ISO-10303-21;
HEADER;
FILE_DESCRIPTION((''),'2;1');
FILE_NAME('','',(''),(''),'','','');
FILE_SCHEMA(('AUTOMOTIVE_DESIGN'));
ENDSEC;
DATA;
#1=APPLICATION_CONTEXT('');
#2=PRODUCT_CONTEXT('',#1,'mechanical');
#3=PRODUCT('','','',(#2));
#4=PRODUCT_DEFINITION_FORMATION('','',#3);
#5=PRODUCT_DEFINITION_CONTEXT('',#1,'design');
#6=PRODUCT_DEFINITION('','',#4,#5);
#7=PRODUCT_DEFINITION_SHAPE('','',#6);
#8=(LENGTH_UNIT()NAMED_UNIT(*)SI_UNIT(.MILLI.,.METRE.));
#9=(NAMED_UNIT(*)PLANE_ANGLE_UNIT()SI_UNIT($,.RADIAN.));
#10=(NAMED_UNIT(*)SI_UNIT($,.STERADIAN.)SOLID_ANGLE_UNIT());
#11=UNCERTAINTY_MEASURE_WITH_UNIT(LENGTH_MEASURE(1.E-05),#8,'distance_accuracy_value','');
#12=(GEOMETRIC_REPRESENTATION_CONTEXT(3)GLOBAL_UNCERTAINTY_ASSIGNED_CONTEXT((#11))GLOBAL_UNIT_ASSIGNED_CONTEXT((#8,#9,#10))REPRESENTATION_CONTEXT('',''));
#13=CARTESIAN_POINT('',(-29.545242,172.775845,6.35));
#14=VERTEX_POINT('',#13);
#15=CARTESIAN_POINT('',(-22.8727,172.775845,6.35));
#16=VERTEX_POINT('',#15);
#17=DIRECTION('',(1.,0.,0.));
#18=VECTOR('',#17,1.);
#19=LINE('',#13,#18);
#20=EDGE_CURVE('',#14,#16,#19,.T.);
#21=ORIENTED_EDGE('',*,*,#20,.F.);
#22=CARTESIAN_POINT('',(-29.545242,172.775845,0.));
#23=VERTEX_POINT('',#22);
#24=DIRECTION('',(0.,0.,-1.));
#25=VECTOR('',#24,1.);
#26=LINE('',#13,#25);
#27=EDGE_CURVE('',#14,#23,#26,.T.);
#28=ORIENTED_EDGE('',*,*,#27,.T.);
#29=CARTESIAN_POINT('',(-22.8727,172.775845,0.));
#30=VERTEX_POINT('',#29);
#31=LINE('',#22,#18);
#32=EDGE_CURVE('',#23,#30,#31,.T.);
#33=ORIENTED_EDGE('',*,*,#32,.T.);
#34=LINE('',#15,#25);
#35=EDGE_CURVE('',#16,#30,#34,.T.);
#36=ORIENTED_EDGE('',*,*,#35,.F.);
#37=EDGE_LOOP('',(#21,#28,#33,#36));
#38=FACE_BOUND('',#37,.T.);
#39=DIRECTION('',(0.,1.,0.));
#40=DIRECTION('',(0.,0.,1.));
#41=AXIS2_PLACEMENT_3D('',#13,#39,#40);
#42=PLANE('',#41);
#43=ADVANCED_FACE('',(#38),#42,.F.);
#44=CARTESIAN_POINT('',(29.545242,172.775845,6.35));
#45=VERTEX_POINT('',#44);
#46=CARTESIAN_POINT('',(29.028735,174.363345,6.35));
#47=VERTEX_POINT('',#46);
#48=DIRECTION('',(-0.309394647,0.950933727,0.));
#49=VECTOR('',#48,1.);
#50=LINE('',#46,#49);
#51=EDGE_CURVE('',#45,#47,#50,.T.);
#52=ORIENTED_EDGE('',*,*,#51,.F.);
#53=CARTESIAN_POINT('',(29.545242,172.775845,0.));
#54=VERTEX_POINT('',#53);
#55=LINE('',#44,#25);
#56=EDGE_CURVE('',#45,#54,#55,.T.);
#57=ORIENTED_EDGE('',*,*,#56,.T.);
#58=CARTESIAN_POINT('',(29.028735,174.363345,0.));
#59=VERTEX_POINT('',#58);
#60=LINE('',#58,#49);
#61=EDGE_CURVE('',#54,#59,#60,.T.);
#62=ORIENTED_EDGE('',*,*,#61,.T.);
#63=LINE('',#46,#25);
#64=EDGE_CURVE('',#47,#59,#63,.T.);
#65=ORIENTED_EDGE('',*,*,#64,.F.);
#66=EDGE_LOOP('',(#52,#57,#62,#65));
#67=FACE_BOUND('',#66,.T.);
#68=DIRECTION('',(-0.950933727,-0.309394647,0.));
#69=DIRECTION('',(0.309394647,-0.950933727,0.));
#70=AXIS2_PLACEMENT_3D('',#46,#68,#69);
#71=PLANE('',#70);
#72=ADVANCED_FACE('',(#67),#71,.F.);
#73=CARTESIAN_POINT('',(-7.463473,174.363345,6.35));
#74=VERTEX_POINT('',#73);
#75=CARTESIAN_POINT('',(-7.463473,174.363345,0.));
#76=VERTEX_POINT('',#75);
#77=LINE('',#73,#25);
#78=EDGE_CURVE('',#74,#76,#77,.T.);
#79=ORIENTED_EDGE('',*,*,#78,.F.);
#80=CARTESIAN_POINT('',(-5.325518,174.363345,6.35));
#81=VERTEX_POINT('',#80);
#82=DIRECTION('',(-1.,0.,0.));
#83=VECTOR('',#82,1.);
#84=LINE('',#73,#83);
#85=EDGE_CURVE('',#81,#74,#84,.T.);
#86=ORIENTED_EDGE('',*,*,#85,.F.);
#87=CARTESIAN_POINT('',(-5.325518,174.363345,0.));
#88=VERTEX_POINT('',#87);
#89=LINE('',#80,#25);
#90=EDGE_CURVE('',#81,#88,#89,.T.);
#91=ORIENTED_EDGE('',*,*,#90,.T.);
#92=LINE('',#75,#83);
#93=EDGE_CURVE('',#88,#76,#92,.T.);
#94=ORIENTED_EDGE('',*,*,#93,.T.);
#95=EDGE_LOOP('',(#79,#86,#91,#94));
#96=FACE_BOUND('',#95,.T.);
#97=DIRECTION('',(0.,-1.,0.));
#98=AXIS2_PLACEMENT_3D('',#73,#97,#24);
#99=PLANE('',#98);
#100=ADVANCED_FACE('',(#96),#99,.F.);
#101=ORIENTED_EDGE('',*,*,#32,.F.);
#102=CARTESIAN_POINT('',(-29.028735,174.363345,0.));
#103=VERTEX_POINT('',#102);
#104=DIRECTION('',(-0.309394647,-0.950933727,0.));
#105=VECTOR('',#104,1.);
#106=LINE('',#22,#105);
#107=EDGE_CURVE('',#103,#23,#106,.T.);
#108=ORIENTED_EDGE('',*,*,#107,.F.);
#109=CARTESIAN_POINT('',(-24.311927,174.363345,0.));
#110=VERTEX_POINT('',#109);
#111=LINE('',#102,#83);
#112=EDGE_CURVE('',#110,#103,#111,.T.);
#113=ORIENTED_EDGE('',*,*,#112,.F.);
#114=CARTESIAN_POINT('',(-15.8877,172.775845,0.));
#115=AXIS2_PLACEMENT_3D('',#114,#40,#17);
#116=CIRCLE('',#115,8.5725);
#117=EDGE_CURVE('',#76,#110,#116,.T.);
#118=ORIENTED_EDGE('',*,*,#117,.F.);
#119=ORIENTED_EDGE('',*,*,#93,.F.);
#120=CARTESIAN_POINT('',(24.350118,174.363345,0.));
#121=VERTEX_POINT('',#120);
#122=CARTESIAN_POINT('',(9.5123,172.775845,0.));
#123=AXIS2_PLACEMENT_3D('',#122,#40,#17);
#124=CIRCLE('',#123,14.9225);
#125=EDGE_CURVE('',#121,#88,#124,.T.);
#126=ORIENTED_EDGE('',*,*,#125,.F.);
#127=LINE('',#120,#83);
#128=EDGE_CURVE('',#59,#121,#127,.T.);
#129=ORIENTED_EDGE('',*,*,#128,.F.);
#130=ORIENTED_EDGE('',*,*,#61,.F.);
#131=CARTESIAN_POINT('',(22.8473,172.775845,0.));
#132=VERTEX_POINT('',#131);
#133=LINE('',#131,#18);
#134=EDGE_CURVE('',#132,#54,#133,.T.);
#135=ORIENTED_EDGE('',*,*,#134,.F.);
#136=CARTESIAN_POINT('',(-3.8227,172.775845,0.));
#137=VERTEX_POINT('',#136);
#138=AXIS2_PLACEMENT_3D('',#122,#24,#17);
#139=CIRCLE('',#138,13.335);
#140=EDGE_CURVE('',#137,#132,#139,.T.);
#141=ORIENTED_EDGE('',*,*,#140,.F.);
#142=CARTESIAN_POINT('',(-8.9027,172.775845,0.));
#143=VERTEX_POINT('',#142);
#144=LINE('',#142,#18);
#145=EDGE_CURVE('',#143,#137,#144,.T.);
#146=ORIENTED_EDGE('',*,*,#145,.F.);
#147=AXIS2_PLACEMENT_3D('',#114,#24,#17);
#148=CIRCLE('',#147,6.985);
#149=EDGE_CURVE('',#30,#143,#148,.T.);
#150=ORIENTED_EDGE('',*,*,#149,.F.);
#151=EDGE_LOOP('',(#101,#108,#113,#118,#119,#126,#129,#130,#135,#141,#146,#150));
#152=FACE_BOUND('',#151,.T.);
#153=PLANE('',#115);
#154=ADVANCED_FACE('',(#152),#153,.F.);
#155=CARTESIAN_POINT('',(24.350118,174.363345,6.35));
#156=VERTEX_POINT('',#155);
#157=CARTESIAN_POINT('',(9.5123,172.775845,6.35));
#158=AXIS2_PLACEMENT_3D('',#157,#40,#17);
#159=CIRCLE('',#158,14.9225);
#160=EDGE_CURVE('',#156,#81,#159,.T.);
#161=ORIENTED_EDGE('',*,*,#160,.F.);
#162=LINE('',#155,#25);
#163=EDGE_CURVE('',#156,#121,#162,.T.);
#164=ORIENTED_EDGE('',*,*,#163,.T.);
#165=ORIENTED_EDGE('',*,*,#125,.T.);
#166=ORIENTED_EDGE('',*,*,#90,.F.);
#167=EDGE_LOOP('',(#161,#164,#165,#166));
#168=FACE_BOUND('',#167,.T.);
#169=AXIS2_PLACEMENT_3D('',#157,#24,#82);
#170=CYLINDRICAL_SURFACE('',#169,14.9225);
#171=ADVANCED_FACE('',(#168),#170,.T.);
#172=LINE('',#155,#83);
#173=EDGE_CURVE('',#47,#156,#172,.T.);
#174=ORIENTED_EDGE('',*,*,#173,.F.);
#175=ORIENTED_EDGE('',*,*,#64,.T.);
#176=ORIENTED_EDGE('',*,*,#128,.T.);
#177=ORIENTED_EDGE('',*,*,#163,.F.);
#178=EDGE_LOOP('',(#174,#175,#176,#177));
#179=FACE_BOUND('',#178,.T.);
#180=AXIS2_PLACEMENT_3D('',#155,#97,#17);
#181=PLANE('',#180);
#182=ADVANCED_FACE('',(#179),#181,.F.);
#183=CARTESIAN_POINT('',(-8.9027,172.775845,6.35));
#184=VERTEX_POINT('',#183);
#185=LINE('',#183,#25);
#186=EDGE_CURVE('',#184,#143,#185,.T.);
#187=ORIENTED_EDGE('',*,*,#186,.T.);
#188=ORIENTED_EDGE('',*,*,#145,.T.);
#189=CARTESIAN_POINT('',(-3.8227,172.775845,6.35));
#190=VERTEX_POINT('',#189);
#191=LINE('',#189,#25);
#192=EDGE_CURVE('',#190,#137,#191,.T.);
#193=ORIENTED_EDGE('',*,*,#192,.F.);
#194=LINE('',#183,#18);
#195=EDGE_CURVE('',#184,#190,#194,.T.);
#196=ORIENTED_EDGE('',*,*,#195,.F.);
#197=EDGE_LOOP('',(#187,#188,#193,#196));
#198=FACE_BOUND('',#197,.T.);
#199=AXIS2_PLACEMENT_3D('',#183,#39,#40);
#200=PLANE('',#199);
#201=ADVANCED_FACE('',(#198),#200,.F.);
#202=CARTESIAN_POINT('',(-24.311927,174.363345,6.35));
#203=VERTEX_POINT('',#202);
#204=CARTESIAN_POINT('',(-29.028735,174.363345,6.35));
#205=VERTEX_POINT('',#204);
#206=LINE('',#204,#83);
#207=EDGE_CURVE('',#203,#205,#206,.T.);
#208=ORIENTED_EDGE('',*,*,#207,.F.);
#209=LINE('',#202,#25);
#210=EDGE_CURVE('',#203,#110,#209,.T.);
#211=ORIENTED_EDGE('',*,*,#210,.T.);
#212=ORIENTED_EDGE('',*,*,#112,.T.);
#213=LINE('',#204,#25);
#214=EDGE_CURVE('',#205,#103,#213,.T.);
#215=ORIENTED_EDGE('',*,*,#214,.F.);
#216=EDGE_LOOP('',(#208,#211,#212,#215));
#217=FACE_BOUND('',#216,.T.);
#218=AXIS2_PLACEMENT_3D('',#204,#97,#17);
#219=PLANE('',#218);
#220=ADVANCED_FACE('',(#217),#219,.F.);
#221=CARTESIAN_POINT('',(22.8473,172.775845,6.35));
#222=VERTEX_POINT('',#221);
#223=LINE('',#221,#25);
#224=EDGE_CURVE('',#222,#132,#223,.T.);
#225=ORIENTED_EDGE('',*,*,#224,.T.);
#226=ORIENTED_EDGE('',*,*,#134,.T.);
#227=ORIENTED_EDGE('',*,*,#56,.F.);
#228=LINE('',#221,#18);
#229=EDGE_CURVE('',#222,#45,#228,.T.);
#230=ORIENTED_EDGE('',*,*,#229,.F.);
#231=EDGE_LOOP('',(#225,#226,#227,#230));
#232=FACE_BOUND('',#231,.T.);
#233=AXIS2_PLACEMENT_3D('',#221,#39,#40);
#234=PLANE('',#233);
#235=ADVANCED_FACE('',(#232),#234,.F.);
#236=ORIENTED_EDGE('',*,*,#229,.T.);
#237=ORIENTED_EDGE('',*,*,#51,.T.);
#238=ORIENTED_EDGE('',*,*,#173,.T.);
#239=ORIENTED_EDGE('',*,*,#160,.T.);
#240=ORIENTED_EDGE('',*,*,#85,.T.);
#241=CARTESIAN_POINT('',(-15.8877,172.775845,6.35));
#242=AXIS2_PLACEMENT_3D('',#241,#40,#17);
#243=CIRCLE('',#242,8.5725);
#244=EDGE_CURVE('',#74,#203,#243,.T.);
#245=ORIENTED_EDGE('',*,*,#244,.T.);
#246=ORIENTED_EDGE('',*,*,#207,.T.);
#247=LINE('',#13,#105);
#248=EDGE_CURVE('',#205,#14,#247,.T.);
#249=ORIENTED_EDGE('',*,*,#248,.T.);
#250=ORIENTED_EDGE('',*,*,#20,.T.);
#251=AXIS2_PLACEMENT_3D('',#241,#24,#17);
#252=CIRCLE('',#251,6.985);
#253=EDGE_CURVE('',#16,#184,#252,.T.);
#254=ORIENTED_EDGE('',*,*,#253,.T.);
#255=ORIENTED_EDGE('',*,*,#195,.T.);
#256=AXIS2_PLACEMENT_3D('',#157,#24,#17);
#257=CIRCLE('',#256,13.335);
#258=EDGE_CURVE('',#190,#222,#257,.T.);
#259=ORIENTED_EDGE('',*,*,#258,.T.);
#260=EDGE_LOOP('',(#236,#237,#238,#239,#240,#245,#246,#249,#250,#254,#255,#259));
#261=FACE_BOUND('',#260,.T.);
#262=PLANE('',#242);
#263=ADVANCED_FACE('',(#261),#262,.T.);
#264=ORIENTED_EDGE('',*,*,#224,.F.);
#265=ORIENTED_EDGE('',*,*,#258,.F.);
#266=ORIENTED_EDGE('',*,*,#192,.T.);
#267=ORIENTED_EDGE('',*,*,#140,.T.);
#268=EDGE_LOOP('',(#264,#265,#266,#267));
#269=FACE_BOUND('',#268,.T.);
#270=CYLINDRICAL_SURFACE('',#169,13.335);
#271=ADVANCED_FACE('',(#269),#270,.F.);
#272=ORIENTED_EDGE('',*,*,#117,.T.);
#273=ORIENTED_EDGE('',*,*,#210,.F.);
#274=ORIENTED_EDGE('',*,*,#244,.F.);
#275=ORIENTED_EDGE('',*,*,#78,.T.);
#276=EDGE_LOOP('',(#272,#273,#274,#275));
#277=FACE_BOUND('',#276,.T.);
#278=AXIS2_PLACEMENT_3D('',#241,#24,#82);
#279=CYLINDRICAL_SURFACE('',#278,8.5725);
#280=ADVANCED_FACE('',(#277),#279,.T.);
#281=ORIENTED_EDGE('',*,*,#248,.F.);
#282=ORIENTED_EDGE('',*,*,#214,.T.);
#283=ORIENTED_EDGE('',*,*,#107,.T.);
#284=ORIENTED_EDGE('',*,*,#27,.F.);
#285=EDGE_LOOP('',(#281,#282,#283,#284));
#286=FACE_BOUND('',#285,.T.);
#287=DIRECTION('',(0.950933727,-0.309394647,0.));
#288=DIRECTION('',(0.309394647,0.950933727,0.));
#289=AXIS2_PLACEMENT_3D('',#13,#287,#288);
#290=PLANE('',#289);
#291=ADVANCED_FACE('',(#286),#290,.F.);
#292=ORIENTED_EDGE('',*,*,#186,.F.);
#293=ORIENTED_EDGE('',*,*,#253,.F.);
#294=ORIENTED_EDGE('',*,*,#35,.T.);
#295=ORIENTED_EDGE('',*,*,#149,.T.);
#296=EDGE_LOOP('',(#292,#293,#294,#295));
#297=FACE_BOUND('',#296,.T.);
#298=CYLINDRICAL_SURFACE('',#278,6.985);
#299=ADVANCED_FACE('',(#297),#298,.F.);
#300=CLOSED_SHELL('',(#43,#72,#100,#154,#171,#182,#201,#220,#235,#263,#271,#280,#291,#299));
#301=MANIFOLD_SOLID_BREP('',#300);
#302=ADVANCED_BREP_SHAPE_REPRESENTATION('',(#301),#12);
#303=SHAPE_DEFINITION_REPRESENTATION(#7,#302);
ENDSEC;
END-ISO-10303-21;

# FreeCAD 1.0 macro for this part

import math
import FreeCAD as App
import Part
import Sketcher

V = App.Vector
Q = App.Units.Quantity

doc = App.newDocument("Part")
body = doc.addObject("PartDesign::Body", "Body")

# Sketch on XY plane
sketch1 = body.newObject("Sketcher::SketchObject", "Sketch")
sketch1.AttachmentSupport = (doc.getObject("XY_Plane"), [""])
sketch1.MapMode = "FlatFace"
sketch1.addGeometry([
    Part.LineSegment(V(-29.5, 172.8, 0), V(-22.9, 172.8, 0)),  # 0
    Part.ArcOfCircle(Part.Circle(V(-15.9, 172.8, 0), V(0, 0, 1), 7), math.radians(0), math.radians(180)),  # 1
    Part.LineSegment(V(-8.9, 172.8, 0), V(-3.8, 172.8, 0)),  # 2
    Part.ArcOfCircle(Part.Circle(V(9.5, 172.8, 0), V(0, 0, 1), 13.3), math.radians(0), math.radians(180)),  # 3
    Part.LineSegment(V(22.8, 172.8, 0), V(29.5, 172.8, 0)),  # 4
    Part.LineSegment(V(29.5, 172.8, 0), V(29, 174.4, 0)),  # 5
    Part.LineSegment(V(29, 174.4, 0), V(24.4, 174.4, 0)),  # 6
    Part.ArcOfCircle(Part.Circle(V(9.5, 172.8, 0), V(0, 0, 1), 14.9), math.radians(6), math.radians(174)),  # 7
    Part.LineSegment(V(-5.3, 174.4, 0), V(-7.5, 174.4, 0)),  # 8
    Part.ArcOfCircle(Part.Circle(V(-15.9, 172.8, 0), V(0, 0, 1), 8.6), math.radians(11), math.radians(169)),  # 9
    Part.LineSegment(V(-24.3, 174.4, 0), V(-29, 174.4, 0)),  # 10
    Part.LineSegment(V(-29, 174.4, 0), V(-29.5, 172.8, 0)),  # 11
], False)
sketch1.addConstraint([
    Sketcher.Constraint("Coincident", 0, 2, 1, 2),
    Sketcher.Constraint("Coincident", 1, 1, 2, 1),
    Sketcher.Constraint("Coincident", 2, 2, 3, 2),
    Sketcher.Constraint("Coincident", 3, 1, 4, 1),
    Sketcher.Constraint("Coincident", 4, 2, 5, 1),
    Sketcher.Constraint("Coincident", 5, 2, 6, 1),
    Sketcher.Constraint("Coincident", 6, 2, 7, 1),
    Sketcher.Constraint("Coincident", 7, 2, 8, 1),
    Sketcher.Constraint("Coincident", 8, 2, 9, 1),
    Sketcher.Constraint("Coincident", 9, 2, 10, 1),
    Sketcher.Constraint("Coincident", 10, 2, 11, 1),
    Sketcher.Constraint("Coincident", 11, 2, 0, 1),
    Sketcher.Constraint("Horizontal", 0),
    Sketcher.Constraint("Horizontal", 2),
    Sketcher.Constraint("Horizontal", 4),
    Sketcher.Constraint("Horizontal", 6),
    Sketcher.Constraint("Horizontal", 8),
    Sketcher.Constraint("Horizontal", 10),
    Sketcher.Constraint("Coincident", 7, 3, 3, 3),
    Sketcher.Constraint("Coincident", 9, 3, 1, 3),
    Sketcher.Constraint("Symmetric", 5, 2, 10, 2, -2),
    Sketcher.Constraint("Symmetric", 4, 2, 11, 2, -2),
    Sketcher.Constraint("Horizontal", 1, 3, 3, 3),
    Sketcher.Constraint("Horizontal", 9, 3, 0, 2),
    Sketcher.Constraint("Horizontal", 0, 2, 1, 1),
    Sketcher.Constraint("Horizontal", 6, 2, 7, 2),
    Sketcher.Constraint("DistanceX", 2, 1, 2, 2, Q("0.2 in")),
    Sketcher.Constraint("Radius", 1, Q("0.275 in")),
    Sketcher.Constraint("Radius", 3, Q("0.525 in")),
    Sketcher.Constraint("Radius", 7, Q("0.5875 in")),
    Sketcher.Constraint("Radius", 9, Q("0.3375 in")),
    Sketcher.Constraint("DistanceY", 4, 2, 5, 2, Q("0.0625 in")),
    Sketcher.Constraint("DistanceX", 1, 3, -1, 1, Q("0.6255 in")),
    Sketcher.Constraint("DistanceX", 0, 1, 0, 2, 6.672542),
    Sketcher.Constraint("Distance", 5, 1.669412),
    Sketcher.Constraint("DistanceY", -1, 1, 1, 3, 172.775845),
])
pad1 = body.newObject("PartDesign::Pad", "Pad")
pad1.Profile = sketch1
pad1.Length = Q("0.25 in")

doc.recompute()
